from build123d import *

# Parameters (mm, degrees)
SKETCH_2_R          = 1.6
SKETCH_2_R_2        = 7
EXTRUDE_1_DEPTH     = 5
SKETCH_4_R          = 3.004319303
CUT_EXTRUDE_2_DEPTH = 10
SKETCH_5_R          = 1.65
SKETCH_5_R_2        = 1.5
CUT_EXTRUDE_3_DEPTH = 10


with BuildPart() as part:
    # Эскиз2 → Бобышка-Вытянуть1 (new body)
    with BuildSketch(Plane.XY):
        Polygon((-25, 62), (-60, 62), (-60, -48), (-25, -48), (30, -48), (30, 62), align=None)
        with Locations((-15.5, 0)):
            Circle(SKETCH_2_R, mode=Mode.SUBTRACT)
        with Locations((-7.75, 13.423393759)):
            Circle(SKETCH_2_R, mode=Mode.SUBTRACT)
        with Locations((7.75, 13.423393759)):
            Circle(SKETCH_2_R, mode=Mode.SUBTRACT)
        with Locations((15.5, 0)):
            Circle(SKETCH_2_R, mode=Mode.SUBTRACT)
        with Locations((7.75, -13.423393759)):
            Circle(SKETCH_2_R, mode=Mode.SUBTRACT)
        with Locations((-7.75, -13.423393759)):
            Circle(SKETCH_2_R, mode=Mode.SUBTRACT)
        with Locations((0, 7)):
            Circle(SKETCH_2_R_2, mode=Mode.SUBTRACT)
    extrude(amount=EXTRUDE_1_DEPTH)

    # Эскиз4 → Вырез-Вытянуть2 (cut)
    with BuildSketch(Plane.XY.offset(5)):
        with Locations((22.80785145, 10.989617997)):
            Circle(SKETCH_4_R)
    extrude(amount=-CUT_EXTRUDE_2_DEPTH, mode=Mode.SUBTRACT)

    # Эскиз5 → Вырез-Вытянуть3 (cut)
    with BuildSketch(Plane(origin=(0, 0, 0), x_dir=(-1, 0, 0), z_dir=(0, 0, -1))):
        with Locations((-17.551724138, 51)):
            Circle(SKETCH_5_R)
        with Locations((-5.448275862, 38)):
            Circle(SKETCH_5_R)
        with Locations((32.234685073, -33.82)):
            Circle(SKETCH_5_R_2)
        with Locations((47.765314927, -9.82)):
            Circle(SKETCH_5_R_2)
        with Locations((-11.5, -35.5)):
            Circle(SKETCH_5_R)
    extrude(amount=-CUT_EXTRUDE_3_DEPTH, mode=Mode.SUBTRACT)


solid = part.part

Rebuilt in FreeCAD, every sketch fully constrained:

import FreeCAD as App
import Part
import Sketcher

doc = App.newDocument("Part")
body = doc.addObject("PartDesign::Body", "Body")

# Sketch on XY plane
sketch1 = body.newObject("Sketcher::SketchObject", "Sketch")
sketch1.AttachmentSupport = (doc.getObject("XY_Plane"), [""])
sketch1.MapMode = "FlatFace"
sketch1.addGeometry([
    Part.LineSegment(App.Vector(-60, 62, 0), App.Vector(-60, -48, 0)),  # 0
    Part.LineSegment(App.Vector(-60, -48, 0), App.Vector(30, -48, 0)),  # 1
    Part.LineSegment(App.Vector(30, -48, 0), App.Vector(30, 62, 0)),  # 2
    Part.LineSegment(App.Vector(30, 62, 0), App.Vector(-60, 62, 0)),  # 3
    Part.Circle(App.Vector(-7.75, -13.423394, 0), App.Vector(0, 0, 1), 1.6),  # 4
    Part.Circle(App.Vector(7.75, -13.423394, 0), App.Vector(0, 0, 1), 1.6),  # 5
    Part.Circle(App.Vector(-15.5, 0, 0), App.Vector(0, 0, 1), 1.6),  # 6
    Part.Circle(App.Vector(-7.75, 13.423394, 0), App.Vector(0, 0, 1), 1.6),  # 7
    Part.Circle(App.Vector(0, 7, 0), App.Vector(0, 0, 1), 7),  # 8
    Part.Circle(App.Vector(15.5, 0, 0), App.Vector(0, 0, 1), 1.6),  # 9
    Part.Circle(App.Vector(7.75, 13.423394, 0), App.Vector(0, 0, 1), 1.6),  # 10
], False)
sketch1.addConstraint([
    Sketcher.Constraint("Coincident", 0, 2, 1, 1),
    Sketcher.Constraint("Coincident", 1, 2, 2, 1),
    Sketcher.Constraint("Coincident", 2, 2, 3, 1),
    Sketcher.Constraint("Coincident", 3, 2, 0, 1),
    Sketcher.Constraint("Vertical", 0),
    Sketcher.Constraint("Horizontal", 1),
    Sketcher.Constraint("Vertical", 2),
    Sketcher.Constraint("Horizontal", 3),
    Sketcher.Constraint("Equal", 4, 5),
    Sketcher.Constraint("Equal", 5, 6),
    Sketcher.Constraint("Equal", 6, 7),
    Sketcher.Constraint("Equal", 7, 9),
    Sketcher.Constraint("Equal", 9, 10),
    Sketcher.Constraint("Symmetric", 5, 3, 7, 3, -1, 1),
    Sketcher.Constraint("Symmetric", 6, 3, 9, 3, -1, 1),
    Sketcher.Constraint("Symmetric", 4, 3, 10, 3, -1, 1),
    Sketcher.Constraint("Symmetric", 4, 3, 5, 3, -2),
    Sketcher.Constraint("PointOnObject", 6, 3, -1),
    Sketcher.Constraint("PointOnObject", 8, 3, -2),
    Sketcher.Constraint("Diameter", 8, 14.0),
    Sketcher.Constraint("Diameter", 4, 3.2),
    Sketcher.Constraint("DistanceX", 1, 1, 1, 2, 90.0),
    Sketcher.Constraint("DistanceY", 0, 2, 0, 1, 110.0),
    Sketcher.Constraint("DistanceY", -1, 1, 8, 3, 7.0),
    Sketcher.Constraint("DistanceX", 0, 2, -1, 1, 60.0),
    Sketcher.Constraint("DistanceY", 0, 2, -1, 1, 48.0),
    Sketcher.Constraint("DistanceX", 6, 3, 9, 3, 31.0),
    Sketcher.Constraint("DistanceX", 4, 3, 5, 3, 15.5),
    Sketcher.Constraint("DistanceY", 4, 3, -1, 1, 13.423394),
])
pad1 = body.newObject("PartDesign::Pad", "Pad")
pad1.Profile = sketch1
pad1.Length = 5

# Sketch on XY plane
sketch2 = body.newObject("Sketcher::SketchObject", "Sketch001")
sketch2.AttachmentSupport = (doc.getObject("XY_Plane"), [""])
sketch2.MapMode = "FlatFace"
sketch2.AttachmentOffset = App.Placement(App.Vector(0, 0, 5), App.Rotation())
sketch2.addGeometry(Part.Circle(App.Vector(22.807851, 10.989618, 0), App.Vector(0, 0, 1), 3.004319), False)
sketch2.addConstraint([
    Sketcher.Constraint("Diameter", 0, 6.008639),
    Sketcher.Constraint("DistanceX", -1, 1, 0, 3, 22.807851),
    Sketcher.Constraint("DistanceY", -1, 1, 0, 3, 10.989618),
])
pocket1 = body.newObject("PartDesign::Pocket", "Pocket")
pocket1.Profile = sketch2
pocket1.Length = 10

# Sketch on XY plane
sketch3 = body.newObject("Sketcher::SketchObject", "Sketch002")
sketch3.AttachmentSupport = (doc.getObject("XY_Plane"), [""])
sketch3.MapMode = "FlatFace"
sketch3.addGeometry([
    Part.Circle(App.Vector(17.551724, 51, 0), App.Vector(0, 0, 1), 1.65),  # 0
    Part.Circle(App.Vector(5.448276, 38, 0), App.Vector(0, 0, 1), 1.65),  # 1
    Part.Circle(App.Vector(-32.234685, -33.82, 0), App.Vector(0, 0, 1), 1.5),  # 2
    Part.Circle(App.Vector(-47.765315, -9.82, 0), App.Vector(0, 0, 1), 1.5),  # 3
    Part.Circle(App.Vector(11.5, -35.5, 0), App.Vector(0, 0, 1), 1.65),  # 4
], False)
sketch3.addConstraint([
    Sketcher.Constraint("Equal", 0, 1),
    Sketcher.Constraint("Equal", 2, 3),
    Sketcher.Constraint("Equal", 1, 4),
    Sketcher.Constraint("Diameter", 2, 3.0),
    Sketcher.Constraint("Diameter", 0, 3.3),
    Sketcher.Constraint("DistanceY", -1, 1, 0, 3, 51.0),
    Sketcher.Constraint("DistanceY", -1, 1, 1, 3, 38.0),
    Sketcher.Constraint("DistanceY", 2, 3, 3, 3, 24.0),
    Sketcher.Constraint("DistanceX", -1, 1, 4, 3, 11.5),
    Sketcher.Constraint("DistanceY", 4, 3, -1, 1, 35.5),
    Sketcher.Constraint("DistanceY", 2, 3, -1, 1, 33.82),
    Sketcher.Constraint("DistanceX", 1, 3, 0, 3, 12.103448),
    Sketcher.Constraint("DistanceX", 2, 3, 1, 3, 37.682961),
    Sketcher.Constraint("DistanceX", 3, 3, 2, 3, 15.53063),
    Sketcher.Constraint("DistanceX", -1, 1, 0, 3, 17.551724),
])
pocket2 = body.newObject("PartDesign::Pocket", "Pocket001")
pocket2.Profile = sketch3
pocket2.Length = 10
pocket2.Reversed = True

doc.recompute()
